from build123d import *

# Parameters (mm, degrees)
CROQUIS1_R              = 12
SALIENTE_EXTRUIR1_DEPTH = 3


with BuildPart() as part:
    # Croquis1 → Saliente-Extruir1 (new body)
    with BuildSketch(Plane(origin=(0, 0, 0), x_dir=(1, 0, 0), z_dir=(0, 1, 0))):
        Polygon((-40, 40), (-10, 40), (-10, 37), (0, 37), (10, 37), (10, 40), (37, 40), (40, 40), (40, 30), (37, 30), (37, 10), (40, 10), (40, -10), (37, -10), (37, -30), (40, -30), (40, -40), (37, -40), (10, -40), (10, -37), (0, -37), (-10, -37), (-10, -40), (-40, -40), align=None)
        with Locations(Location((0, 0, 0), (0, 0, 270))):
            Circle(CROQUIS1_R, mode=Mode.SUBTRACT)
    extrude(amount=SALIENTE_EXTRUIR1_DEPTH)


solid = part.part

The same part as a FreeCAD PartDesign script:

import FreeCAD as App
import Part
import Sketcher
from FreeCAD import Vector
Q = App.Units.Quantity


def add_polygon(sketch, points):
    """Adds a closed chain of lines whose ends are joined by coincident constraints."""
    first, n = sketch.GeometryCount, len(points)
    for a, b in zip(points, points[1:] + points[:1]):
        sketch.addGeometry(Part.LineSegment(App.Vector(*a, 0), App.Vector(*b, 0)), False)
    for i in range(n):
        sketch.addConstraint(Sketcher.Constraint("Coincident", first + i, 2, first + (i + 1) % n, 1))

doc = App.newDocument("Part")
body = doc.addObject("PartDesign::Body", "Body")

# Sketch on XZ plane
sketch1 = body.newObject("Sketcher::SketchObject", "Sketch")
sketch1.AttachmentSupport = (doc.getObject("XZ_Plane"), [""])
sketch1.MapMode = "FlatFace"
add_polygon(sketch1, [(-10, -40), (-40, -40), (-40, 40), (-10, 40), (-10, 37), (10, 37), (10, 40), (40, 40), (40, 30), (37, 30), (37, 10), (40, 10), (40, -10), (37, -10), (37, -30), (40, -30), (40, -40), (10, -40), (10, -37), (-10, -37)])  # lines 0-19
sketch1.addGeometry(Part.Circle(Vector(0, 0, 0), Vector(0, 0, 1), 12), False)  # 20
sketch1.addConstraint(Sketcher.Constraint("Horizontal", 0))
sketch1.addConstraint(Sketcher.Constraint("Vertical", 1))
sketch1.addConstraint(Sketcher.Constraint("Horizontal", 2))
sketch1.addConstraint(Sketcher.Constraint("Vertical", 3))
sketch1.addConstraint(Sketcher.Constraint("Horizontal", 4))
sketch1.addConstraint(Sketcher.Constraint("Vertical", 5))
sketch1.addConstraint(Sketcher.Constraint("Horizontal", 6))
sketch1.addConstraint(Sketcher.Constraint("Vertical", 7))
sketch1.addConstraint(Sketcher.Constraint("Horizontal", 8))
sketch1.addConstraint(Sketcher.Constraint("Vertical", 9))
sketch1.addConstraint(Sketcher.Constraint("Horizontal", 10))
sketch1.addConstraint(Sketcher.Constraint("Vertical", 11))
sketch1.addConstraint(Sketcher.Constraint("Horizontal", 12))
sketch1.addConstraint(Sketcher.Constraint("Vertical", 13))
sketch1.addConstraint(Sketcher.Constraint("Horizontal", 14))
sketch1.addConstraint(Sketcher.Constraint("Vertical", 15))
sketch1.addConstraint(Sketcher.Constraint("Horizontal", 16))
sketch1.addConstraint(Sketcher.Constraint("Vertical", 17))
sketch1.addConstraint(Sketcher.Constraint("Horizontal", 18))
sketch1.addConstraint(Sketcher.Constraint("Vertical", 19))
sketch1.addConstraint(Sketcher.Constraint("Coincident", 20, 3, -1, 1))
sketch1.addConstraint(Sketcher.Constraint("Symmetric", 0, 2, 6, 2, -1, 1))
sketch1.addConstraint(Sketcher.Constraint("Symmetric", 1, 2, 15, 2, -1, 1))
sketch1.addConstraint(Sketcher.Constraint("Symmetric", 3, 2, 17, 2, -1, 1))
sketch1.addConstraint(Sketcher.Constraint("Symmetric", 2, 2, 5, 2, -2))
sketch1.addConstraint(Sketcher.Constraint("Symmetric", 9, 2, 12, 2, -1))
sketch1.addConstraint(Sketcher.Constraint("Vertical", 7, 2, 10, 2))
sketch1.addConstraint(Sketcher.Constraint("Vertical", 3, 2, 18, 2))
sketch1.addConstraint(Sketcher.Constraint("Equal", 14, 3))
sketch1.addConstraint(Sketcher.Constraint("Equal", 18, 9))
sketch1.addConstraint(Sketcher.Constraint("Equal", 9, 11))
sketch1.addConstraint(Sketcher.Constraint("Equal", 11, 13))
sketch1.addConstraint(Sketcher.Constraint("Diameter", 20, Q("24 mm")))
sketch1.addConstraint(Sketcher.Constraint("DistanceX", 0, 2, 0, 1, Q("30 mm")))
sketch1.addConstraint(Sketcher.Constraint("DistanceX", 4, 1, 4, 2, Q("20 mm")))
sketch1.addConstraint(Sketcher.Constraint("DistanceX", 8, 2, 8, 1, Q("3 mm")))
sketch1.addConstraint(Sketcher.Constraint("DistanceY", 1, 1, 1, 2, Q("80 mm")))
pad1 = body.newObject("PartDesign::Pad", "Pad")
pad1.Profile = sketch1
pad1.Length = 3
pad1.Reversed = True

doc.recompute()
